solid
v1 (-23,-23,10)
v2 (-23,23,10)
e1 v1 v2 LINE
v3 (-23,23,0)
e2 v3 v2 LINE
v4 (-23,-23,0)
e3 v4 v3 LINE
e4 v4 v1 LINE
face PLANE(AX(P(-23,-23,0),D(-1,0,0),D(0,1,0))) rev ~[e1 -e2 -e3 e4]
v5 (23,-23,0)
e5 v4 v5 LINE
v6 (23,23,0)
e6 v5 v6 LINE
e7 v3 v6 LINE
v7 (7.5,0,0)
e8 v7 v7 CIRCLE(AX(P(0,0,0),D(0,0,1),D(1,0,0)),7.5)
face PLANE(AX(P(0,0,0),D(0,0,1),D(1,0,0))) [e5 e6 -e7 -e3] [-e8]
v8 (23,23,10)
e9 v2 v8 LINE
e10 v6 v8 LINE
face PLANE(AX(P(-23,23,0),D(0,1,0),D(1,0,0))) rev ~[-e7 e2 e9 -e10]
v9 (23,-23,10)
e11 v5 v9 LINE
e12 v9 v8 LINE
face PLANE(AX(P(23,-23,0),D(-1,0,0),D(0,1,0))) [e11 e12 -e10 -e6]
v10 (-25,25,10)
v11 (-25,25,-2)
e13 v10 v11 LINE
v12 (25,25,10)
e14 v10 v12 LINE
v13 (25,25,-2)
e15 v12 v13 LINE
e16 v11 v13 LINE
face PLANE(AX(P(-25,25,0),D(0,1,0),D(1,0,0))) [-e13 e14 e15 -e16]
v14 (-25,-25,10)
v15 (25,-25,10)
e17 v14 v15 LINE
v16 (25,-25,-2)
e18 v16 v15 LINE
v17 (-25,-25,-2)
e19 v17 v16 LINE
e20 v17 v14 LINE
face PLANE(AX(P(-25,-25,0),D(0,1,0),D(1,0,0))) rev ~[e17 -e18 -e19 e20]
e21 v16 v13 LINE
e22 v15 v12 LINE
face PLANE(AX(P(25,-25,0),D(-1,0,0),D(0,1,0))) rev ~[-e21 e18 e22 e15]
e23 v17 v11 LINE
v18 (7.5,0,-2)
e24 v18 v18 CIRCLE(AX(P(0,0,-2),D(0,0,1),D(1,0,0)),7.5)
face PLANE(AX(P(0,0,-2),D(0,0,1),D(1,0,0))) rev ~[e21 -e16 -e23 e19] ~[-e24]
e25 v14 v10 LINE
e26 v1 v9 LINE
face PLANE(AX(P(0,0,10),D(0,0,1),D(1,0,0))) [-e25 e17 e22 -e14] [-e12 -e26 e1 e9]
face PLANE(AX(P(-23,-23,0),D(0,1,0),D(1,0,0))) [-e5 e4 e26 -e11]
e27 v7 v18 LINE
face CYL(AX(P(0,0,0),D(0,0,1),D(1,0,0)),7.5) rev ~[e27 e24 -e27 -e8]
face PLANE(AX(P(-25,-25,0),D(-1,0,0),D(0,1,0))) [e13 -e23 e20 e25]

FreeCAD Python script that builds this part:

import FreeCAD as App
import Part
import Sketcher

V = App.Vector


def add_polygon(sketch, points):
    """Adds a closed chain of lines whose ends are joined by coincident constraints."""
    first, n = sketch.GeometryCount, len(points)
    for a, b in zip(points, points[1:] + points[:1]):
        sketch.addGeometry(Part.LineSegment(App.Vector(*a, 0), App.Vector(*b, 0)), False)
    for i in range(n):
        sketch.addConstraint(Sketcher.Constraint("Coincident", first + i, 2, first + (i + 1) % n, 1))

doc = App.newDocument("Part")
params = doc.addObject("Spreadsheet::Sheet", "Params")
for row, (alias, value) in enumerate([
    ("sketch1_diameter", "15 mm"),
    ("sketch1_width", "50 mm"),
    ("pad1_length", "2 mm"),
    ("sketch2_width", "50 mm"),
    ("sketch2_width2", "46 mm"),
    ("pad2_length", "10 mm"),
], start=1):
    params.set(f"A{row}", alias)
    params.set(f"B{row}", "=" + value)
    params.setAlias(f"B{row}", alias)

body = doc.addObject("PartDesign::Body", "Body")

# Sketch on XY plane
sketch1 = body.newObject("Sketcher::SketchObject", "Sketch")
sketch1.AttachmentSupport = (doc.getObject("XY_Plane"), [""])
sketch1.MapMode = "FlatFace"
add_polygon(sketch1, [(-25, 25), (-25, -25), (25, -25), (25, 25)])  # lines 0-3
sketch1.addGeometry(Part.Circle(V(0, 0, 0), V(0, 0, 1), 8), False)  # 4
sketch1.addConstraint([
    Sketcher.Constraint("Vertical", 0),
    Sketcher.Constraint("Horizontal", 1),
    Sketcher.Constraint("Vertical", 2),
    Sketcher.Constraint("Horizontal", 3),
    Sketcher.Constraint("Coincident", 4, 3, -1, 1),
    Sketcher.Constraint("Symmetric", 0, 2, 2, 2, -1, 1),
    Sketcher.Constraint("Equal", 3, 0),
    Sketcher.Constraint("Diameter", 4, 15.0),
    Sketcher.Constraint("DistanceX", 1, 1, 1, 2, 50.0),
])
sketch1.setExpression("Constraints[11]", "Params.sketch1_diameter")
sketch1.setExpression("Constraints[12]", "Params.sketch1_width")
pad1 = body.newObject("PartDesign::Pad", "Pad")
pad1.Profile = sketch1
pad1.setExpression("Length", "Params.pad1_length")
pad1.Reversed = True

# Sketch on XY plane
sketch2 = body.newObject("Sketcher::SketchObject", "Sketch001")
sketch2.AttachmentSupport = (doc.getObject("XY_Plane"), [""])
sketch2.MapMode = "FlatFace"
add_polygon(sketch2, [(-25, 25), (-25, -25), (25, -25), (25, 25)])  # lines 0-3
add_polygon(sketch2, [(23, -23), (-23, -23), (-23, 23), (23, 23)])  # lines 4-7
sketch2.addConstraint([
    Sketcher.Constraint("Vertical", 0),
    Sketcher.Constraint("Horizontal", 1),
    Sketcher.Constraint("Vertical", 2),
    Sketcher.Constraint("Horizontal", 3),
    Sketcher.Constraint("Horizontal", 4),
    Sketcher.Constraint("Vertical", 5),
    Sketcher.Constraint("Horizontal", 6),
    Sketcher.Constraint("Vertical", 7),
    Sketcher.Constraint("Symmetric", 0, 2, 2, 2, -1, 1),
    Sketcher.Constraint("Symmetric", 4, 2, 6, 2, -1, 1),
    Sketcher.Constraint("Equal", 3, 0),
    Sketcher.Constraint("Equal", 6, 5),
    Sketcher.Constraint("DistanceX", 1, 1, 1, 2, 50.0),
    Sketcher.Constraint("DistanceX", 4, 2, 4, 1, 46.0),
])
sketch2.setExpression("Constraints[20]", "Params.sketch2_width")
sketch2.setExpression("Constraints[21]", "Params.sketch2_width2")
pad2 = body.newObject("PartDesign::Pad", "Pad001")
pad2.Profile = sketch2
pad2.setExpression("Length", "Params.pad2_length")

doc.recompute()
